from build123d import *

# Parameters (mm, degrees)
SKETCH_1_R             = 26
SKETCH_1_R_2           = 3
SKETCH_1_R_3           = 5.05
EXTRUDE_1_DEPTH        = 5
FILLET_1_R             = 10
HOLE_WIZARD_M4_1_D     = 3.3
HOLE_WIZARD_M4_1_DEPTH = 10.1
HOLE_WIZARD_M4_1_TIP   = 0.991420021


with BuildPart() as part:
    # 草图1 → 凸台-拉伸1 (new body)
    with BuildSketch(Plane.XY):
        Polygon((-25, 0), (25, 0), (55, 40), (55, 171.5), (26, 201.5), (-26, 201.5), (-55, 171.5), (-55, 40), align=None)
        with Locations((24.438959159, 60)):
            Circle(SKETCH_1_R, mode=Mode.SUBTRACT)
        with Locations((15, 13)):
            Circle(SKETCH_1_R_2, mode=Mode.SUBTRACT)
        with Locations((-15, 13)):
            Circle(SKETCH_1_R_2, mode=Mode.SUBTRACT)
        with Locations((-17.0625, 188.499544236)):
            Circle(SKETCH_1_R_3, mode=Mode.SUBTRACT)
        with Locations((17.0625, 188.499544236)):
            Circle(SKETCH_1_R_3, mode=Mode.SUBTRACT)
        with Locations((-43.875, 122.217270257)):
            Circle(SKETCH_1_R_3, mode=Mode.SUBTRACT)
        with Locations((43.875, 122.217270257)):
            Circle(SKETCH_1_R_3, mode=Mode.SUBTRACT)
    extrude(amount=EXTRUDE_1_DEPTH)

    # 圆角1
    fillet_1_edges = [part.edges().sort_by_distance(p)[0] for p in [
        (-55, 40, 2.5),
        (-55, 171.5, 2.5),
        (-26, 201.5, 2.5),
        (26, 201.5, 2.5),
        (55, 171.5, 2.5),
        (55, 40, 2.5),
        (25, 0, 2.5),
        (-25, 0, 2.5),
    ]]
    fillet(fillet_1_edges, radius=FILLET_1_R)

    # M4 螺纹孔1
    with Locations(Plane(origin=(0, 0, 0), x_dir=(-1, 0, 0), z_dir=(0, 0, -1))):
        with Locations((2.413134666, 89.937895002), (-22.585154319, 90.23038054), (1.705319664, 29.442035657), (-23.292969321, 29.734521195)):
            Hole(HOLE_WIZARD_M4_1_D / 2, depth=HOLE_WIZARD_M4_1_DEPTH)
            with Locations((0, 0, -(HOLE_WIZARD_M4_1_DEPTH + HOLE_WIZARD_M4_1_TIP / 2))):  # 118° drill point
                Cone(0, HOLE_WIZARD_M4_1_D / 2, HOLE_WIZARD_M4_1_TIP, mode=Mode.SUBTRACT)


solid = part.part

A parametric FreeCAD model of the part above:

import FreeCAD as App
import Part
import Sketcher

V = App.Vector


def edges_at(feature, points):
    """Names of the edges that pass closest to the given points."""
    edges = feature.Shape.Edges
    near = lambda p: min(range(len(edges)), key=lambda i: edges[i].distToShape(Part.Vertex(*p))[0])
    return sorted({f"Edge{near(p) + 1}" for p in points})

doc = App.newDocument("Part")
body = doc.addObject("PartDesign::Body", "Body")

sketch1 = doc.addObject("Sketcher::SketchObject", "Sketch")
body.addObject(sketch1)
sketch1.AttachmentSupport = (doc.XY_Plane, [""])
sketch1.MapMode = "FlatFace"
sketch1.addGeometry(Part.LineSegment(V(-25, 0, 0), V(25, 0, 0)), False)
sketch1.addGeometry(Part.LineSegment(V(25, 0, 0), V(55, 40, 0)), False)
sketch1.addGeometry(Part.LineSegment(V(55, 40, 0), V(55, 171.5, 0)), False)
sketch1.addGeometry(Part.LineSegment(V(55, 171.5, 0), V(26, 201.5, 0)), False)
sketch1.addGeometry(Part.LineSegment(V(26, 201.5, 0), V(-26, 201.5, 0)), False)
sketch1.addGeometry(Part.LineSegment(V(-26, 201.5, 0), V(-55, 171.5, 0)), False)
sketch1.addGeometry(Part.LineSegment(V(-55, 171.5, 0), V(-55, 40, 0)), False)
sketch1.addGeometry(Part.LineSegment(V(-55, 40, 0), V(-25, 0, 0)), False)
sketch1.addGeometry(Part.Circle(V(-15, 13, 0), V(0, 0, 1), 3), False)
sketch1.addGeometry(Part.Circle(V(15, 13, 0), V(0, 0, 1), 3), False)
sketch1.addGeometry(Part.Circle(V(24.438959, 60, 0), V(0, 0, 1), 26), False)
sketch1.addGeometry(Part.Circle(V(-43.875, 122.21727, 0), V(0, 0, 1), 5.05), False)
sketch1.addGeometry(Part.Circle(V(-17.0625, 188.499544, 0), V(0, 0, 1), 5.05), False)
sketch1.addGeometry(Part.Circle(V(43.875, 122.21727, 0), V(0, 0, 1), 5.05), False)
sketch1.addGeometry(Part.Circle(V(17.0625, 188.499544, 0), V(0, 0, 1), 5.05), False)
sketch1.addConstraint(Sketcher.Constraint("Coincident", 0, 2, 1, 1))
sketch1.addConstraint(Sketcher.Constraint("Coincident", 1, 2, 2, 1))
sketch1.addConstraint(Sketcher.Constraint("Coincident", 2, 2, 3, 1))
sketch1.addConstraint(Sketcher.Constraint("Coincident", 3, 2, 4, 1))
sketch1.addConstraint(Sketcher.Constraint("Coincident", 4, 2, 5, 1))
sketch1.addConstraint(Sketcher.Constraint("Coincident", 5, 2, 6, 1))
sketch1.addConstraint(Sketcher.Constraint("Coincident", 6, 2, 7, 1))
sketch1.addConstraint(Sketcher.Constraint("Coincident", 7, 2, 0, 1))
sketch1.addConstraint(Sketcher.Constraint("Horizontal", 0))
sketch1.addConstraint(Sketcher.Constraint("Vertical", 2))
sketch1.addConstraint(Sketcher.Constraint("Horizontal", 4))
sketch1.addConstraint(Sketcher.Constraint("Vertical", 6))
sketch1.addConstraint(Sketcher.Constraint("Equal", 8, 9))
sketch1.addConstraint(Sketcher.Constraint("Equal", 11, 12))
sketch1.addConstraint(Sketcher.Constraint("Equal", 12, 13))
sketch1.addConstraint(Sketcher.Constraint("Equal", 13, 14))
sketch1.addConstraint(Sketcher.Constraint("Symmetric", 0, 2, 7, 2, -1, 1))
sketch1.addConstraint(Sketcher.Constraint("Symmetric", 8, 3, 9, 3, -2))
sketch1.addConstraint(Sketcher.Constraint("Symmetric", 11, 3, 13, 3, -2))
sketch1.addConstraint(Sketcher.Constraint("Symmetric", 12, 3, 14, 3, -2))
sketch1.addConstraint(Sketcher.Constraint("Symmetric", 2, 2, 5, 2, -2))
sketch1.addConstraint(Sketcher.Constraint("Horizontal", 1, 2, 6, 2))
sketch1.addConstraint(Sketcher.Constraint("Equal", 3, 5))
sketch1.addConstraint(Sketcher.Constraint("Diameter", 8, 6.0))
sketch1.addConstraint(Sketcher.Constraint("Diameter", 10, 52.0))
sketch1.addConstraint(Sketcher.Constraint("Diameter", 11, 10.1))
sketch1.addConstraint(Sketcher.Constraint("DistanceX", 0, 1, 0, 2, 50.0))
sketch1.addConstraint(Sketcher.Constraint("DistanceX", 4, 2, 4, 1, 52.0))
sketch1.addConstraint(Sketcher.Constraint("Distance", 1, 50.0))
sketch1.addConstraint(Sketcher.Constraint("DistanceY", 2, 1, 2, 2, 131.5))
sketch1.addConstraint(Sketcher.Constraint("DistanceX", 8, 3, -1, 1, 15.0))
sketch1.addConstraint(Sketcher.Constraint("DistanceY", -1, 1, 8, 3, 13.0))
sketch1.addConstraint(Sketcher.Constraint("DistanceY", -1, 1, 10, 3, 60.0))
sketch1.addConstraint(Sketcher.Constraint("DistanceX", -1, 1, 1, 2, 55.0))
sketch1.addConstraint(Sketcher.Constraint("DistanceY", 2, 2, 3, 2, 30.0))
sketch1.addConstraint(Sketcher.Constraint("DistanceX", 11, 3, 13, 3, 87.75))
sketch1.addConstraint(Sketcher.Constraint("DistanceX", 12, 3, 14, 3, 34.125))
sketch1.addConstraint(Sketcher.Constraint("DistanceX", -1, 1, 10, 3, 24.438959))
sketch1.addConstraint(Sketcher.Constraint("DistanceY", -1, 1, 11, 3, 122.21727))
sketch1.addConstraint(Sketcher.Constraint("DistanceY", -1, 1, 12, 3, 188.499544))
pad1 = doc.addObject("PartDesign::Pad", "Pad")
body.addObject(pad1)
pad1.Profile = sketch1
pad1.Length = 5
doc.recompute()

fillet = doc.addObject("PartDesign::Fillet", "Fillet")
body.addObject(fillet)
fillet.Base = (pad1, edges_at(pad1, [
    (-55, 40, 2.5),
    (-55, 171.5, 2.5),
    (-26, 201.5, 2.5),
    (26, 201.5, 2.5),
    (55, 171.5, 2.5),
    (55, 40, 2.5),
    (25, 0, 2.5),
    (-25, 0, 2.5),
]))
fillet.Radius = 10

sketch2 = doc.addObject("Sketcher::SketchObject", "Sketch001")
body.addObject(sketch2)
sketch2.AttachmentSupport = (doc.XY_Plane, [""])
sketch2.MapMode = "FlatFace"
sketch2.addGeometry(Part.Circle(V(-2.413135, 89.937895, 0), V(0, 0, 1), 1.65), False)
sketch2.addGeometry(Part.Circle(V(22.585154, 90.230381, 0), V(0, 0, 1), 1.65), False)
sketch2.addGeometry(Part.Circle(V(-1.70532, 29.442036, 0), V(0, 0, 1), 1.65), False)
sketch2.addGeometry(Part.Circle(V(23.292969, 29.734521, 0), V(0, 0, 1), 1.65), False)
sketch2.addConstraint(Sketcher.Constraint("Equal", 0, 1))
sketch2.addConstraint(Sketcher.Constraint("Equal", 1, 2))
sketch2.addConstraint(Sketcher.Constraint("Equal", 2, 3))
sketch2.addConstraint(Sketcher.Constraint("Diameter", 0, 3.3))
sketch2.addConstraint(Sketcher.Constraint("DistanceY", -1, 1, 1, 3, 90.230381))
sketch2.addConstraint(Sketcher.Constraint("DistanceX", 2, 3, -1, 1, 1.70532))
sketch2.addConstraint(Sketcher.Constraint("DistanceX", -1, 1, 3, 3, 23.292969))
sketch2.addConstraint(Sketcher.Constraint("DistanceY", -1, 1, 3, 3, 29.734521))
sketch2.addConstraint(Sketcher.Constraint("DistanceX", 0, 3, 1, 3, 24.998289))
sketch2.addConstraint(Sketcher.Constraint("DistanceY", 2, 3, 0, 3, 60.495859))
sketch2.addConstraint(Sketcher.Constraint("DistanceX", 0, 3, -1, 1, 2.413135))
sketch2.addConstraint(Sketcher.Constraint("DistanceY", -1, 1, 0, 3, 89.937895))
doc.recompute()
hole = doc.addObject("PartDesign::Hole", "Hole")
body.addObject(hole)
hole.Profile = sketch2
hole.ThreadType = "None"
hole.Diameter = 3.3
hole.DepthType = "Dimension"
hole.Depth = 10.1
hole.DrillPoint = "Angled"
hole.DrillPointAngle = 118
hole.Reversed = True

doc.recompute()
